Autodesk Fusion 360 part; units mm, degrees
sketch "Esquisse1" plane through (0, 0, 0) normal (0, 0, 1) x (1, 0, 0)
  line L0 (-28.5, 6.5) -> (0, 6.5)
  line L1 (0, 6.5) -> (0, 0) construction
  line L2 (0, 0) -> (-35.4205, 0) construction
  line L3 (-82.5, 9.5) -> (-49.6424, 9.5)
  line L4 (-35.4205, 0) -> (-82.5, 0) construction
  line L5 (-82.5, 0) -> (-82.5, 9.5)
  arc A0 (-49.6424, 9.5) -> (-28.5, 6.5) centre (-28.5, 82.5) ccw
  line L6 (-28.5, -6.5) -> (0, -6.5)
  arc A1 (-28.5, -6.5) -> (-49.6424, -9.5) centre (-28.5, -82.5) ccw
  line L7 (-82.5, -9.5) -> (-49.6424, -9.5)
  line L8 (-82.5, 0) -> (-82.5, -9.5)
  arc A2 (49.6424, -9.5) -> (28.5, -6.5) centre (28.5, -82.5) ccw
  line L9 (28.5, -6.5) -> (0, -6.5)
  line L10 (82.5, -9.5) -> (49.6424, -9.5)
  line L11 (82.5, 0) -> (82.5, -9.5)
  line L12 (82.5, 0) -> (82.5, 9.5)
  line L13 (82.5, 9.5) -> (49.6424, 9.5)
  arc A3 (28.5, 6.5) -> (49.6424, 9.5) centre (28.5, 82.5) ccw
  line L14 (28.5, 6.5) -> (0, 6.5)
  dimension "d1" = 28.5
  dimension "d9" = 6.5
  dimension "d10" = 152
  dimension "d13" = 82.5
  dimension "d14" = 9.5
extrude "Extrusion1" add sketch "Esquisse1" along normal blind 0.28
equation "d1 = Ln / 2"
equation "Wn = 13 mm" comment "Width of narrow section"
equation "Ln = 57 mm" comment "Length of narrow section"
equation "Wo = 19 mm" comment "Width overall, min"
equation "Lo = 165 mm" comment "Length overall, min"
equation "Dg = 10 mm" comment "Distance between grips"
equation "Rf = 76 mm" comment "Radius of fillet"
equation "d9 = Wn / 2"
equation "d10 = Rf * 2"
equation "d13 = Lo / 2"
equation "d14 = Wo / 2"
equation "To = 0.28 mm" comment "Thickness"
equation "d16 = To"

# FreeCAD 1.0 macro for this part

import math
import FreeCAD as App
import Part
import Sketcher

V = App.Vector

doc = App.newDocument("Part")
params = doc.addObject("Spreadsheet::Sheet", "Params")
for row, (alias, value) in enumerate([
    ("sketch1_radius", "76 mm"),
    ("pad1_length", "0.28 mm"),
], start=1):
    params.set(f"A{row}", alias)
    params.set(f"B{row}", "=" + value)
    params.setAlias(f"B{row}", alias)

body = doc.addObject("PartDesign::Body", "Body")

# Sketch on XY plane
sketch1 = body.newObject("Sketcher::SketchObject", "Sketch")
sketch1.AttachmentSupport = (doc.getObject("XY_Plane"), [""])
sketch1.MapMode = "FlatFace"
sketch1.addGeometry([
    Part.LineSegment(V(28, 6, 0), V(-28, 6, 0)),  # 0
    Part.ArcOfCircle(Part.Circle(V(-28, 82, 0), V(0, 0, 1), 76), math.radians(-106.15), math.radians(-90)),  # 1
    Part.LineSegment(V(-50, 10, 0), V(-82, 10, 0)),  # 2
    Part.LineSegment(V(-82, 10, 0), V(-82, -10, 0)),  # 3
    Part.LineSegment(V(-82, -10, 0), V(-50, -10, 0)),  # 4
    Part.ArcOfCircle(Part.Circle(V(-28, -82, 0), V(0, 0, 1), 76), math.radians(90), math.radians(106.15)),  # 5
    Part.LineSegment(V(-28, -6, 0), V(28, -6, 0)),  # 6
    Part.ArcOfCircle(Part.Circle(V(28, -82, 0), V(0, 0, 1), 76), math.radians(73.85), math.radians(90)),  # 7
    Part.LineSegment(V(50, -10, 0), V(82, -10, 0)),  # 8
    Part.LineSegment(V(82, -10, 0), V(82, 10, 0)),  # 9
    Part.LineSegment(V(82, 10, 0), V(50, 10, 0)),  # 10
    Part.ArcOfCircle(Part.Circle(V(28, 82, 0), V(0, 0, 1), 76), math.radians(-90), math.radians(-73.85)),  # 11
], False)
sketch1.addConstraint([
    Sketcher.Constraint("Tangent", 0, 2, 1, 2),
    Sketcher.Constraint("Coincident", 1, 1, 2, 1),
    Sketcher.Constraint("Coincident", 2, 2, 3, 1),
    Sketcher.Constraint("Coincident", 3, 2, 4, 1),
    Sketcher.Constraint("Coincident", 4, 2, 5, 2),
    Sketcher.Constraint("Tangent", 5, 1, 6, 1),
    Sketcher.Constraint("Tangent", 6, 2, 7, 2),
    Sketcher.Constraint("Coincident", 7, 1, 8, 1),
    Sketcher.Constraint("Coincident", 8, 2, 9, 1),
    Sketcher.Constraint("Coincident", 9, 2, 10, 1),
    Sketcher.Constraint("Coincident", 10, 2, 11, 2),
    Sketcher.Constraint("Tangent", 11, 1, 0, 1),
    Sketcher.Constraint("Horizontal", 0),
    Sketcher.Constraint("Horizontal", 2),
    Sketcher.Constraint("Vertical", 3),
    Sketcher.Constraint("Horizontal", 4),
    Sketcher.Constraint("Horizontal", 6),
    Sketcher.Constraint("Horizontal", 8),
    Sketcher.Constraint("Vertical", 9),
    Sketcher.Constraint("Horizontal", 10),
    Sketcher.Constraint("Equal", 1, 5),
    Sketcher.Constraint("Equal", 5, 7),
    Sketcher.Constraint("Equal", 7, 11),
    Sketcher.Constraint("Symmetric", 1, 3, 7, 3, -1, 1),
    Sketcher.Constraint("Symmetric", 2, 2, 8, 2, -1, 1),
    Sketcher.Constraint("Symmetric", 4, 2, 10, 2, -1, 1),
    Sketcher.Constraint("Symmetric", 4, 2, 7, 1, -2),
    Sketcher.Constraint("Radius", 1, 76.0),
    Sketcher.Constraint("DistanceX", 1, 3, -1, 1, 28.5),
    Sketcher.Constraint("DistanceY", -1, 1, 1, 3, 82.5),
    Sketcher.Constraint("DistanceY", -1, 1, 1, 1, 9.5),
    Sketcher.Constraint("DistanceX", 2, 2, -1, 1, 82.5),
])
sketch1.setExpression("Constraints[27]", "Params.sketch1_radius")
pad1 = body.newObject("PartDesign::Pad", "Pad")
pad1.Profile = sketch1
pad1.setExpression("Length", "Params.pad1_length")

doc.recompute()
